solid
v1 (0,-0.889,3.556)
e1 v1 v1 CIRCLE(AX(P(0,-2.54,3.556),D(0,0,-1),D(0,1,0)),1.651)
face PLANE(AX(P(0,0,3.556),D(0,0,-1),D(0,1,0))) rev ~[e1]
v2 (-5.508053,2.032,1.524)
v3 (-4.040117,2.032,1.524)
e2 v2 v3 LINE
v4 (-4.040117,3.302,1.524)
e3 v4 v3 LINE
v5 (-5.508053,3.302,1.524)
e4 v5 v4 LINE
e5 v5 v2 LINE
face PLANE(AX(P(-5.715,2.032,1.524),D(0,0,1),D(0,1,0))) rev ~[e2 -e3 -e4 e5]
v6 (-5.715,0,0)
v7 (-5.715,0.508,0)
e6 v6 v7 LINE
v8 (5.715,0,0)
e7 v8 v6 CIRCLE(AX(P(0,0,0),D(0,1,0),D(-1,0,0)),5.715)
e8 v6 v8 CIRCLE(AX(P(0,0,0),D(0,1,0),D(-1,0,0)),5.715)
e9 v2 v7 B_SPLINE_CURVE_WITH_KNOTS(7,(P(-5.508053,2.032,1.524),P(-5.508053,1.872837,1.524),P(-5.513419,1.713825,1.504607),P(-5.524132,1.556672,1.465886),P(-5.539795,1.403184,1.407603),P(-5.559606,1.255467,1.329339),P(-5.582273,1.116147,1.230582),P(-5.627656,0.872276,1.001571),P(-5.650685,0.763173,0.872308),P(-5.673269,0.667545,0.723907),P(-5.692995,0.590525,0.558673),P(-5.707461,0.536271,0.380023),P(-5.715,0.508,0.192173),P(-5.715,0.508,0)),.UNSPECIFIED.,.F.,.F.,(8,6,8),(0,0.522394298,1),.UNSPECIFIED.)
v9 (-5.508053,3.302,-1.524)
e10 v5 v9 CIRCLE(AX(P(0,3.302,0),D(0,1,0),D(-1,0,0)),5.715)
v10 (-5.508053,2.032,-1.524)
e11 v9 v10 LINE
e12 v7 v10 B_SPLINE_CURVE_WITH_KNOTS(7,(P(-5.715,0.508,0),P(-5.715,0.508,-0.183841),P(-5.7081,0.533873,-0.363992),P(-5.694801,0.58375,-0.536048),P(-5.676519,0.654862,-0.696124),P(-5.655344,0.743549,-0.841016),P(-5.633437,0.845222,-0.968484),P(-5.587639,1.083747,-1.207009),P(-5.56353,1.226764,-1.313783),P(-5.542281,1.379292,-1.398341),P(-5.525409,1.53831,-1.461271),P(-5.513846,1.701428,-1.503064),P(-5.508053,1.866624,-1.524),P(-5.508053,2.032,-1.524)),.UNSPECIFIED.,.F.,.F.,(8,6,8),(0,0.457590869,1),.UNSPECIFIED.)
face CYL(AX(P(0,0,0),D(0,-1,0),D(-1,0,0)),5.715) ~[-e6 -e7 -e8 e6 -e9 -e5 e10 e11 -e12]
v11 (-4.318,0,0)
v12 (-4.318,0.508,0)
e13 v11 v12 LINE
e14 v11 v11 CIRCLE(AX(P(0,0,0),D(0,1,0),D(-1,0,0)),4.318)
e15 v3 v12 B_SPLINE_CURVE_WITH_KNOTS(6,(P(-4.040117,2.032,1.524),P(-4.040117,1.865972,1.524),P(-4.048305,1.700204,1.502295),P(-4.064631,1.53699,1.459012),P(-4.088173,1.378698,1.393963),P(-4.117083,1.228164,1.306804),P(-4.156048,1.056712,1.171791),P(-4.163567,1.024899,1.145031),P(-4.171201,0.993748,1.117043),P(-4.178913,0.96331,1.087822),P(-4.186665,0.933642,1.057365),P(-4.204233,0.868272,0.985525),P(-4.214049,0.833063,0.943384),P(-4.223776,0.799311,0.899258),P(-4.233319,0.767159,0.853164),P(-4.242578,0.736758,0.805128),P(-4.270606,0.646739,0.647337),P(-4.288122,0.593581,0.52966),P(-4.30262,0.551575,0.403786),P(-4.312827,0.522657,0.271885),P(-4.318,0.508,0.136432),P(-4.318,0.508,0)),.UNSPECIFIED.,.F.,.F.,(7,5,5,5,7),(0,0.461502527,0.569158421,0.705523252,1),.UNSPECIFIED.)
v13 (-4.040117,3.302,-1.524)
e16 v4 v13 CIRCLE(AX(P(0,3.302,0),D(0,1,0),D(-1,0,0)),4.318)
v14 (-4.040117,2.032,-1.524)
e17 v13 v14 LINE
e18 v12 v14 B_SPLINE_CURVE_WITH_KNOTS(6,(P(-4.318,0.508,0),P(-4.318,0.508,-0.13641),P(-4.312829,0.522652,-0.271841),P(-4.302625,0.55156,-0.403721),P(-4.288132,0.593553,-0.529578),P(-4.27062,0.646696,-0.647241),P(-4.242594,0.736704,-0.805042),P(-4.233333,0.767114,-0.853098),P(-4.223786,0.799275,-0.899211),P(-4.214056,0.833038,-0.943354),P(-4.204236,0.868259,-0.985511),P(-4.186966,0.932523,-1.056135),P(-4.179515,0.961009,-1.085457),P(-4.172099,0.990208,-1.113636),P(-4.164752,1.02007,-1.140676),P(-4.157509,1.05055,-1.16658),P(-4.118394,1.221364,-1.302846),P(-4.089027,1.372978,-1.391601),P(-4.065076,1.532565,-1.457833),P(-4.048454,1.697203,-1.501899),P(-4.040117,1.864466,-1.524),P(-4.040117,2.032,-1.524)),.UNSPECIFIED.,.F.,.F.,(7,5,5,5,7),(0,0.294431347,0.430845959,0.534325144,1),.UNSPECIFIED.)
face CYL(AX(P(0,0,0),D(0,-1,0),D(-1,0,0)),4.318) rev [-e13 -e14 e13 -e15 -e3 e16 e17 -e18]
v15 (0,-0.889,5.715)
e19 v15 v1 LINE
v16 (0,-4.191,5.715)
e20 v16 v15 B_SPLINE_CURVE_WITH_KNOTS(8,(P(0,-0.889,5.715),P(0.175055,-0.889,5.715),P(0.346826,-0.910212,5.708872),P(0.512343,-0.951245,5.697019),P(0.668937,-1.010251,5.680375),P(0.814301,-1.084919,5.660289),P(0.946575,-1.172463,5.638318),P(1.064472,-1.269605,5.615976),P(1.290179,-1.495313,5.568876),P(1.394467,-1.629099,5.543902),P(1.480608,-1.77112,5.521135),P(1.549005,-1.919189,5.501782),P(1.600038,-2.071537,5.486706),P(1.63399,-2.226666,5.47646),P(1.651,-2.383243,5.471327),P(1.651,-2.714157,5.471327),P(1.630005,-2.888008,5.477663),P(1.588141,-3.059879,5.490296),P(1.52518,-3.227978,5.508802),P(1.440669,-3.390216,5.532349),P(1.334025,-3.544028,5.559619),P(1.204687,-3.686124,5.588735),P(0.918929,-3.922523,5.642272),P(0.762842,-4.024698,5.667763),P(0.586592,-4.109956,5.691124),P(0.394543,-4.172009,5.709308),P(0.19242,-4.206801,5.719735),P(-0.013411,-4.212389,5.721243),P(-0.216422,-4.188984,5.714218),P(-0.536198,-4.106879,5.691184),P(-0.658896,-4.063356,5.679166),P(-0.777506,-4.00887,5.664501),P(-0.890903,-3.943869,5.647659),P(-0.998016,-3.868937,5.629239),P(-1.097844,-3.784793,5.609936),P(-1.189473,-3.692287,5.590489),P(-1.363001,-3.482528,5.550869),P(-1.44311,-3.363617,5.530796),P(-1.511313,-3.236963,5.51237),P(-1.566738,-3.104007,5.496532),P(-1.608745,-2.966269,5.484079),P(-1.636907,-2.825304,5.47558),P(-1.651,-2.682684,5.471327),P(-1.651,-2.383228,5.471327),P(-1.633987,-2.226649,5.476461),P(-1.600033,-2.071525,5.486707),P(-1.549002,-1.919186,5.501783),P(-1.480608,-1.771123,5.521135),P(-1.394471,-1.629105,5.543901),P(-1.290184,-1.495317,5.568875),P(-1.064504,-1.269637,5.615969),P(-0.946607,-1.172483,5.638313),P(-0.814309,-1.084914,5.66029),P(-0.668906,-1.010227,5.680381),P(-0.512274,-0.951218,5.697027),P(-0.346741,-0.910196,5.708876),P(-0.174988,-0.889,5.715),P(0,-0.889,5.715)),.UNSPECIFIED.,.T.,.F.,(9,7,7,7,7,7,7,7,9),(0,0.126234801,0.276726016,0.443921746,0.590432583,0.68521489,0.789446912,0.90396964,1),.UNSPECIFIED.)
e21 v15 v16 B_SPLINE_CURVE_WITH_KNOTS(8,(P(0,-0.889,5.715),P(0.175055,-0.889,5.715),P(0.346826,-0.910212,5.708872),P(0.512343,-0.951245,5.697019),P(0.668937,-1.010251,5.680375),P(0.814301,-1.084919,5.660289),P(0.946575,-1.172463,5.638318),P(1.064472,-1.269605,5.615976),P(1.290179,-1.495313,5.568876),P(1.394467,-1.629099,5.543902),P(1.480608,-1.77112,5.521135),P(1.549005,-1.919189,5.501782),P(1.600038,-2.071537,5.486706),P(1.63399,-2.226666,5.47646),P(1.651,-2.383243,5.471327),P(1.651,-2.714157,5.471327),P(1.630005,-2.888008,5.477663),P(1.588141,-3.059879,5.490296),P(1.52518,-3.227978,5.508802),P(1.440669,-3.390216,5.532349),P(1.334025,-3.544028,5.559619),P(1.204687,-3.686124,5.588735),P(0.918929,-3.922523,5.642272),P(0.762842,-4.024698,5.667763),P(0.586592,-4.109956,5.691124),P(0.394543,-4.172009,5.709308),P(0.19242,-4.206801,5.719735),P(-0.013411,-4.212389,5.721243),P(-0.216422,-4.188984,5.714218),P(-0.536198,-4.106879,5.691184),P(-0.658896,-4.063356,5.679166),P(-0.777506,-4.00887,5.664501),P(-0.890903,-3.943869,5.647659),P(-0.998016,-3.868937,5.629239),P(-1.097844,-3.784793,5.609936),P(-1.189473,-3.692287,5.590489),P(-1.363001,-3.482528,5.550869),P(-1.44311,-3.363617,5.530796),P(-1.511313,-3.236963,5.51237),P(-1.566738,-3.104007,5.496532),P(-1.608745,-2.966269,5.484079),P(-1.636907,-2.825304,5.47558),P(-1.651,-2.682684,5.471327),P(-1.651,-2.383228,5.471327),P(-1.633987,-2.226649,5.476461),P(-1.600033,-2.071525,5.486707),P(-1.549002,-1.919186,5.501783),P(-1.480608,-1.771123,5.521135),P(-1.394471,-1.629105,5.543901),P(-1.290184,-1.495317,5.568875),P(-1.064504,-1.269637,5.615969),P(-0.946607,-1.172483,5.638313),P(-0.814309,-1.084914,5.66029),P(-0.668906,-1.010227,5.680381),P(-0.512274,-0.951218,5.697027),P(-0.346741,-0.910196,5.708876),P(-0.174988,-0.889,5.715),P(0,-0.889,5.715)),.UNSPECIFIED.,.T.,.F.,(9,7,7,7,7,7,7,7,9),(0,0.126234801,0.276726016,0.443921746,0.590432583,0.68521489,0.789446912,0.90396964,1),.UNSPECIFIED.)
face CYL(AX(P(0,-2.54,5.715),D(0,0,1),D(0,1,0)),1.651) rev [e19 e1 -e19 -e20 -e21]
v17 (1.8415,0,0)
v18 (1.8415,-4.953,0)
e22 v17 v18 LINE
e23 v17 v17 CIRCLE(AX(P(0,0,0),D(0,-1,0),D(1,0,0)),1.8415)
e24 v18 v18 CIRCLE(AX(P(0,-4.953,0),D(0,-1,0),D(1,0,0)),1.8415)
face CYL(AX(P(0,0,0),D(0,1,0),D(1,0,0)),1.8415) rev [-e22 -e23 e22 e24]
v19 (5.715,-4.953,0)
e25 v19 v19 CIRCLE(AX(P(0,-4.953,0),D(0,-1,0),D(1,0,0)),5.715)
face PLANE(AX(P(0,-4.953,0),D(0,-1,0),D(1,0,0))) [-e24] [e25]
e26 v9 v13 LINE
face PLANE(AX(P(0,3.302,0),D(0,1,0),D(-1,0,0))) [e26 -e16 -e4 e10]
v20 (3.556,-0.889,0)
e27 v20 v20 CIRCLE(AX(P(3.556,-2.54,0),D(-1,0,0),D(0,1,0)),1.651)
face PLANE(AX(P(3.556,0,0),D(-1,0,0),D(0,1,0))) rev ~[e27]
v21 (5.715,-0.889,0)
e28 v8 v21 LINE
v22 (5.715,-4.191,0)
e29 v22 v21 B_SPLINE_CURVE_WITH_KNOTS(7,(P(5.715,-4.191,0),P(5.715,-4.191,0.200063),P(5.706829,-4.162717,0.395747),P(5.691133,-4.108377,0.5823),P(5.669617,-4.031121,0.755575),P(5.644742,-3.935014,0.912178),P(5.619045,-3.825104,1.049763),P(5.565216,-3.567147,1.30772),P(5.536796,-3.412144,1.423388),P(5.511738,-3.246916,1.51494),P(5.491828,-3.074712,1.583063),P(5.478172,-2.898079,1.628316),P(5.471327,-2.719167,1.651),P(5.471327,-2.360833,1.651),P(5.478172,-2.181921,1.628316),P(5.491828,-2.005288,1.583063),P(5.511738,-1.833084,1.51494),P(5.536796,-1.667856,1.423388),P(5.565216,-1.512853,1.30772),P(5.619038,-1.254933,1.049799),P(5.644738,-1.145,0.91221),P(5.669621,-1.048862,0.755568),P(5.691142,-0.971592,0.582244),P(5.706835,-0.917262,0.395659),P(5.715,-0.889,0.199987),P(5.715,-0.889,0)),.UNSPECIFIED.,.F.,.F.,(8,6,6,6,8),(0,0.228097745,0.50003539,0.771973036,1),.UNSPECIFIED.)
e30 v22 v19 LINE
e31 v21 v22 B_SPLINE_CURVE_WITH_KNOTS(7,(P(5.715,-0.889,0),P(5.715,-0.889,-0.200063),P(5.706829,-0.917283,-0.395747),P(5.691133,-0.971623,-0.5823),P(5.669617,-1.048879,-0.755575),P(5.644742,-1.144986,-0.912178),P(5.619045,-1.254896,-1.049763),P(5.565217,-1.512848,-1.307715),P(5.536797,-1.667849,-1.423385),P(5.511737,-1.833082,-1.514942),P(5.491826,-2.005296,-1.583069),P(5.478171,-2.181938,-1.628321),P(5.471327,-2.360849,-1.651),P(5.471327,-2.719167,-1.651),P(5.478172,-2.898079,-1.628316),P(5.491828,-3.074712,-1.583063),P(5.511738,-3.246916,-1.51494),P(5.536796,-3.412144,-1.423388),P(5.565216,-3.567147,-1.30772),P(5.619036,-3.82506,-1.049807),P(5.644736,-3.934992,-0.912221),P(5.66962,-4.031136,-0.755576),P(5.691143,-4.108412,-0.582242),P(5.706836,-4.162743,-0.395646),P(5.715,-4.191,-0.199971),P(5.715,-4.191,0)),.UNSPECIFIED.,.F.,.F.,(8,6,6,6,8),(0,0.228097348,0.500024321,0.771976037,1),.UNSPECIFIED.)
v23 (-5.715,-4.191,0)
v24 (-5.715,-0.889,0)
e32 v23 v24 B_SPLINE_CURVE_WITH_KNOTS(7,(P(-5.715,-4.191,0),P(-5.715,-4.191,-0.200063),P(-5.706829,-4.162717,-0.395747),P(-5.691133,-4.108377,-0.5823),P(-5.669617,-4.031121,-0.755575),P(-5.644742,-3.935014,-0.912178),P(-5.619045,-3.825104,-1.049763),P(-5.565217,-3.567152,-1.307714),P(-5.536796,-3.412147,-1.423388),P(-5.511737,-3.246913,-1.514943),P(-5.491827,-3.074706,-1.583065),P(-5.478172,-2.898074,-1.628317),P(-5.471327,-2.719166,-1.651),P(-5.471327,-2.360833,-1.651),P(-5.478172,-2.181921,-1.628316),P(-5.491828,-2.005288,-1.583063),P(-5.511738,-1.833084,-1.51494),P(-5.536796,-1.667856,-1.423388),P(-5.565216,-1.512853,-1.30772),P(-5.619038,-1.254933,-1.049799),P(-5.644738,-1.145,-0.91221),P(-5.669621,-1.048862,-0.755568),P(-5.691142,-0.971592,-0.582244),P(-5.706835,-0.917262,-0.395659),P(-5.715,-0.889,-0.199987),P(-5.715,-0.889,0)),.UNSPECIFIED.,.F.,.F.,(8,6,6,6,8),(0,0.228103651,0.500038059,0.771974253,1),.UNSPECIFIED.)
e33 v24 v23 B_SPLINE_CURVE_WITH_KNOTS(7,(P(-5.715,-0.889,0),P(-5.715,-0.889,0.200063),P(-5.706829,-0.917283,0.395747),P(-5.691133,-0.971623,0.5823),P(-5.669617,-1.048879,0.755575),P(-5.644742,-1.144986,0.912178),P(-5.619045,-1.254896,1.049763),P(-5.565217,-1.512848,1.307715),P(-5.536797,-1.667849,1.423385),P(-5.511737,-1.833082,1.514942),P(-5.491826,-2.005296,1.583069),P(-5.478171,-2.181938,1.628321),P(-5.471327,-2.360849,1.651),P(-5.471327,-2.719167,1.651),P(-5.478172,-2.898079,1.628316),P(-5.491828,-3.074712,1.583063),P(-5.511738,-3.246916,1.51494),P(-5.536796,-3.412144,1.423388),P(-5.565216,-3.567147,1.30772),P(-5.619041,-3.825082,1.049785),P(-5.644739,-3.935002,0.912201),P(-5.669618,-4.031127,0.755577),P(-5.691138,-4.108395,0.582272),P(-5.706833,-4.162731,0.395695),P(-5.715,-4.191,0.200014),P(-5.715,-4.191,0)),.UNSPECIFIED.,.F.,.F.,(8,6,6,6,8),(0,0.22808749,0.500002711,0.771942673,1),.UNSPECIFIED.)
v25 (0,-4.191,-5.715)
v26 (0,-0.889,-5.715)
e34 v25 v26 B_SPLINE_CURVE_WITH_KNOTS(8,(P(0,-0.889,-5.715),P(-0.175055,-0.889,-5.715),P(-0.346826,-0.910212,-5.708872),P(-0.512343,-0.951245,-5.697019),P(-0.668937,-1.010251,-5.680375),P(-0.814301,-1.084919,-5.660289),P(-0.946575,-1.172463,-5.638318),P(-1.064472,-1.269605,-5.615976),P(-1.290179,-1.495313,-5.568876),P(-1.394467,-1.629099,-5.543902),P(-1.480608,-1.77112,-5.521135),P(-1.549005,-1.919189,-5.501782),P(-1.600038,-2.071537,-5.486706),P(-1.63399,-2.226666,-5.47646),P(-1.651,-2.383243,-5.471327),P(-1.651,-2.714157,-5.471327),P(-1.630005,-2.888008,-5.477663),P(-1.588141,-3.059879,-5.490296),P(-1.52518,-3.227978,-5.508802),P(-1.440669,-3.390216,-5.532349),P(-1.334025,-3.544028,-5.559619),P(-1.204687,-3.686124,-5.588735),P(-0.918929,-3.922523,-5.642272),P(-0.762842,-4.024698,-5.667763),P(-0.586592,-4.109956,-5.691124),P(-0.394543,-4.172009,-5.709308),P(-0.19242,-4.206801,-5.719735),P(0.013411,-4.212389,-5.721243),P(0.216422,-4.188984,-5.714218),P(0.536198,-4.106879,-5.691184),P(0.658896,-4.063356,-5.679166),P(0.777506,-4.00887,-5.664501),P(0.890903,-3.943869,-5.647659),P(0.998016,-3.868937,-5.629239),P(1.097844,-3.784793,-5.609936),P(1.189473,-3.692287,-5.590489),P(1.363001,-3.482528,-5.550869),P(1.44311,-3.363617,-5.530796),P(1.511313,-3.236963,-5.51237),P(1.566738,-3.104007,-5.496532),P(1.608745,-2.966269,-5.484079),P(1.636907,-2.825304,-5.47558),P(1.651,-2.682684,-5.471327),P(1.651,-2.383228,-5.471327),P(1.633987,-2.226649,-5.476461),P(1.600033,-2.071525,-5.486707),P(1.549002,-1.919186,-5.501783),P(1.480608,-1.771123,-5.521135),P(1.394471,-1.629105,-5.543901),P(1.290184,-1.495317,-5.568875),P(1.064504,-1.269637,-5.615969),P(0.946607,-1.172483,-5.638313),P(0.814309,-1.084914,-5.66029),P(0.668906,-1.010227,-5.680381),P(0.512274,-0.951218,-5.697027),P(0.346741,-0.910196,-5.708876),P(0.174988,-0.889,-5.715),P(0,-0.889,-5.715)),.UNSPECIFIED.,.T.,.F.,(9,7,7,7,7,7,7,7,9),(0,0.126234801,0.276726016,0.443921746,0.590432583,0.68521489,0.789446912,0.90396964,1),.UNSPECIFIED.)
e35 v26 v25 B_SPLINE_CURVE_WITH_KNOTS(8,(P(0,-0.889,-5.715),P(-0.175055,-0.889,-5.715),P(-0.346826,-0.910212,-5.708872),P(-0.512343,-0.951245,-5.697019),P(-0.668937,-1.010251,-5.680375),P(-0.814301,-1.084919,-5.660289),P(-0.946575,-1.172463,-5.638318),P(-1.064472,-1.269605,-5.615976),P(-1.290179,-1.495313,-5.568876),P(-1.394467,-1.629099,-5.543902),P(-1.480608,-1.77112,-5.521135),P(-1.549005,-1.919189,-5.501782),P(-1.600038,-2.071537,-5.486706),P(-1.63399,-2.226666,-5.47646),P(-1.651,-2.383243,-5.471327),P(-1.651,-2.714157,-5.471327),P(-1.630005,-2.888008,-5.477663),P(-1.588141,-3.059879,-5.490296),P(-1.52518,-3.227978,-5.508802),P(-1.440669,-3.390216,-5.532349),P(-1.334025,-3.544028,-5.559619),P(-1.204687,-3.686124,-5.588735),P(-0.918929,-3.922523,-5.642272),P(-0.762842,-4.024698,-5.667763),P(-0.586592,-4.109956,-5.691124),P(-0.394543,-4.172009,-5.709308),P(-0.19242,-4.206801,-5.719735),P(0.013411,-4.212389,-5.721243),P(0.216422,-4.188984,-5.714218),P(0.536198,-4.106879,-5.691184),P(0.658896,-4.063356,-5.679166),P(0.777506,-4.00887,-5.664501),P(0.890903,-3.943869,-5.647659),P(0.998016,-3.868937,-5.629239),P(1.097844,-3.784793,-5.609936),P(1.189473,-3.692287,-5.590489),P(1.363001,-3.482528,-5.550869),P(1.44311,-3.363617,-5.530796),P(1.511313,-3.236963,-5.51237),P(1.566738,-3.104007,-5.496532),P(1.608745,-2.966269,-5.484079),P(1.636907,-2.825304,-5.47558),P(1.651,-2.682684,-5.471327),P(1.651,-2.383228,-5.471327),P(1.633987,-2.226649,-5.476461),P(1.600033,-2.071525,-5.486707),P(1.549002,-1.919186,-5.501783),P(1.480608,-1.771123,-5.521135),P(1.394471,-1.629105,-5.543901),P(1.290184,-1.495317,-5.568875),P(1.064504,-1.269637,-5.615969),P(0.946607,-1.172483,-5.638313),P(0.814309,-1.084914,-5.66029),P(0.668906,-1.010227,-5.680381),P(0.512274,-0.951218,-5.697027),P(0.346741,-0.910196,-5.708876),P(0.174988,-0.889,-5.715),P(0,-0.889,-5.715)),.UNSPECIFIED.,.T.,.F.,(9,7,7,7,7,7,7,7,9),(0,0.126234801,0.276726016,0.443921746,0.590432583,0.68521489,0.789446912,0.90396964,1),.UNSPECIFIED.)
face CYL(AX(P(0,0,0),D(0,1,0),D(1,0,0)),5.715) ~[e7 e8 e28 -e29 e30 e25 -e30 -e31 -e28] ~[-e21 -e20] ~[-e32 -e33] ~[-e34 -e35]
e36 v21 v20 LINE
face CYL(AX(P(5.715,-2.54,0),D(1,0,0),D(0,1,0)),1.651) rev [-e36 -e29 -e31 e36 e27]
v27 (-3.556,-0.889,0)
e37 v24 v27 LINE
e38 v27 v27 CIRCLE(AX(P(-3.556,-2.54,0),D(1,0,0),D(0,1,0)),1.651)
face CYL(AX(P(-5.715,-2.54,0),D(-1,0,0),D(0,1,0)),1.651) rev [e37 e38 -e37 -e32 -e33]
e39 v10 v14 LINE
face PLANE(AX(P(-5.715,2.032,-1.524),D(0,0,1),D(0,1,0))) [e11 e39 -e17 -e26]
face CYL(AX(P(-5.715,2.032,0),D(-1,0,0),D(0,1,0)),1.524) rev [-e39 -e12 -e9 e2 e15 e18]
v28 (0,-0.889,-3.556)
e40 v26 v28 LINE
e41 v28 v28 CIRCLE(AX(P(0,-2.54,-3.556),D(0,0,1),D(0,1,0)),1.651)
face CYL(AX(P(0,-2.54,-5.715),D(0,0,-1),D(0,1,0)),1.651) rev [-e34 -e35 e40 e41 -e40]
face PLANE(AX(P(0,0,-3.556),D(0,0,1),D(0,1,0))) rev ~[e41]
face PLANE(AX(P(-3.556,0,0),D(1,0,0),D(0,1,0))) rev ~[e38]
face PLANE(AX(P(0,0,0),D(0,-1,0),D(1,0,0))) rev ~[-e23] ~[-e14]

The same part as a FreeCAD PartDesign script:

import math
import FreeCAD as App
import Part
import Sketcher

V = App.Vector
Q = App.Units.Quantity

doc = App.newDocument("Part")
params = doc.addObject("Spreadsheet::Sheet", "Params")
for row, (alias, value) in enumerate([
    ("sketch1_diameter", "0.45 in"),
    ("sketch1_diameter2", "0.34 in"),
    ("pad1_length", "0.13 in"),
    ("sketch2_diameter", "0.145 in"),
    ("sketch2_diameter2", "0.45 in"),
    ("pad2_length", "0.195 in"),
    ("sketch3_diameter", "0.13 in"),
    ("pocket1_length", "0.085 in"),
    ("sketch4_radius", "0.06 in"),
    ("sketch4_width", "0.05 in"),
    ("pocket2_length", "0.085 in"),
], start=1):
    params.set(f"A{row}", alias)
    params.set(f"B{row}", "=" + value)
    params.setAlias(f"B{row}", alias)

body = doc.addObject("PartDesign::Body", "Body")

sketch1 = body.newObject("Sketcher::SketchObject", "Sketch")
sketch1.AttachmentSupport = (doc.getObject("XZ_Plane"), [""])
sketch1.MapMode = "FlatFace"
sketch1.addGeometry(Part.Circle(V(0, 0, 0), V(0, 0, 1), 5.7), False)
sketch1.addGeometry(Part.Circle(V(0, 0, 0), V(0, 0, 1), 4.3), False)
sketch1.addConstraint(Sketcher.Constraint("Coincident", 0, 3, -1, 1))
sketch1.addConstraint(Sketcher.Constraint("Coincident", 1, 3, -1, 1))
sketch1.addConstraint(Sketcher.Constraint("Diameter", 0, Q("0.45 in")))
sketch1.addConstraint(Sketcher.Constraint("Diameter", 1, Q("0.34 in")))
sketch1.setExpression("Constraints[2]", "Params.sketch1_diameter")
sketch1.setExpression("Constraints[3]", "Params.sketch1_diameter2")
pad1 = body.newObject("PartDesign::Pad", "Pad")
pad1.Profile = sketch1
pad1.setExpression("Length", "Params.pad1_length")
pad1.Reversed = True

sketch2 = body.newObject("Sketcher::SketchObject", "Sketch001")
sketch2.AttachmentSupport = (doc.getObject("XZ_Plane"), [""])
sketch2.MapMode = "FlatFace"
sketch2.addGeometry(Part.Circle(V(0, 0, 0), V(0, 0, 1), 5.7), False)
sketch2.addGeometry(Part.Circle(V(0, 0, 0), V(0, 0, 1), 1.8), False)
sketch2.addConstraint(Sketcher.Constraint("Coincident", 0, 3, -1, 1))
sketch2.addConstraint(Sketcher.Constraint("Coincident", 1, 3, -1, 1))
sketch2.addConstraint(Sketcher.Constraint("Diameter", 1, Q("0.145 in")))
sketch2.addConstraint(Sketcher.Constraint("Diameter", 0, Q("0.45 in")))
sketch2.setExpression("Constraints[2]", "Params.sketch2_diameter")
sketch2.setExpression("Constraints[3]", "Params.sketch2_diameter2")
pad2 = body.newObject("PartDesign::Pad", "Pad001")
pad2.Profile = sketch2
pad2.setExpression("Length", "Params.pad2_length")

sketch3 = body.newObject("Sketcher::SketchObject", "Sketch002")
sketch3.AttachmentSupport = (doc.getObject("YZ_Plane"), [""])
sketch3.MapMode = "FlatFace"
sketch3.AttachmentOffset = App.Placement(V(0, 0, -0.225 * 25.4), App.Rotation())
sketch3.addGeometry(Part.Circle(V(-2.5, 0, 0), V(0, 0, 1), 1.7), False)
sketch3.addConstraint(Sketcher.Constraint("PointOnObject", 0, 3, -1))
sketch3.addConstraint(Sketcher.Constraint("Diameter", 0, Q("0.13 in")))
sketch3.addConstraint(Sketcher.Constraint("DistanceX", 0, 3, -1, 1, Q("0.1 in")))
sketch3.setExpression("Constraints[1]", "Params.sketch3_diameter")
pocket1 = body.newObject("PartDesign::Pocket", "Pocket")
pocket1.Profile = sketch3
pocket1.setExpression("Length", "Params.pocket1_length")
pocket1.Reversed = True
doc.recompute()

polarpattern = body.newObject("PartDesign::PolarPattern", "PolarPattern")
polarpattern.Originals = [pocket1]
polarpattern.Axis = (doc.getObject("Y_Axis"), [""])
polarpattern.Angle = 360
polarpattern.Occurrences = 4
body.Tip = polarpattern

sketch4 = body.newObject("Sketcher::SketchObject", "Sketch003")
sketch4.AttachmentSupport = (doc.getObject("YZ_Plane"), [""])
sketch4.MapMode = "FlatFace"
sketch4.AttachmentOffset = App.Placement(V(0, 0, -0.225 * 25.4), App.Rotation())
sketch4.addGeometry(Part.LineSegment(V(3.3, 1.5, 0), V(2, 1.5, 0)), False)
sketch4.addGeometry(Part.ArcOfCircle(Part.Circle(V(2, 0, 0), V(0, 0, 1), 1.5), math.radians(90), math.radians(270)), False)
sketch4.addGeometry(Part.LineSegment(V(2, -1.5, 0), V(3.3, -1.5, 0)), False)
sketch4.addGeometry(Part.LineSegment(V(3.3, -1.5, 0), V(3.3, 1.5, 0)), False)
sketch4.addConstraint(Sketcher.Constraint("Tangent", 0, 2, 1, 1))
sketch4.addConstraint(Sketcher.Constraint("Tangent", 1, 2, 2, 1))
sketch4.addConstraint(Sketcher.Constraint("Coincident", 2, 2, 3, 1))
sketch4.addConstraint(Sketcher.Constraint("Coincident", 3, 2, 0, 1))
sketch4.addConstraint(Sketcher.Constraint("Horizontal", 0))
sketch4.addConstraint(Sketcher.Constraint("Horizontal", 2))
sketch4.addConstraint(Sketcher.Constraint("Vertical", 3))
sketch4.addConstraint(Sketcher.Constraint("PointOnObject", 1, 3, -1))
sketch4.addConstraint(Sketcher.Constraint("Radius", 1, Q("0.06 in")))
sketch4.addConstraint(Sketcher.Constraint("DistanceX", 0, 2, 0, 1, Q("0.05 in")))
sketch4.addConstraint(Sketcher.Constraint("DistanceX", -1, 1, 1, 3, Q("0.08 in")))
sketch4.setExpression("Constraints[8]", "Params.sketch4_radius")
sketch4.setExpression("Constraints[9]", "Params.sketch4_width")
pocket2 = body.newObject("PartDesign::Pocket", "Pocket001")
pocket2.Profile = sketch4
pocket2.setExpression("Length", "Params.pocket2_length")
pocket2.Reversed = True

doc.recompute()
